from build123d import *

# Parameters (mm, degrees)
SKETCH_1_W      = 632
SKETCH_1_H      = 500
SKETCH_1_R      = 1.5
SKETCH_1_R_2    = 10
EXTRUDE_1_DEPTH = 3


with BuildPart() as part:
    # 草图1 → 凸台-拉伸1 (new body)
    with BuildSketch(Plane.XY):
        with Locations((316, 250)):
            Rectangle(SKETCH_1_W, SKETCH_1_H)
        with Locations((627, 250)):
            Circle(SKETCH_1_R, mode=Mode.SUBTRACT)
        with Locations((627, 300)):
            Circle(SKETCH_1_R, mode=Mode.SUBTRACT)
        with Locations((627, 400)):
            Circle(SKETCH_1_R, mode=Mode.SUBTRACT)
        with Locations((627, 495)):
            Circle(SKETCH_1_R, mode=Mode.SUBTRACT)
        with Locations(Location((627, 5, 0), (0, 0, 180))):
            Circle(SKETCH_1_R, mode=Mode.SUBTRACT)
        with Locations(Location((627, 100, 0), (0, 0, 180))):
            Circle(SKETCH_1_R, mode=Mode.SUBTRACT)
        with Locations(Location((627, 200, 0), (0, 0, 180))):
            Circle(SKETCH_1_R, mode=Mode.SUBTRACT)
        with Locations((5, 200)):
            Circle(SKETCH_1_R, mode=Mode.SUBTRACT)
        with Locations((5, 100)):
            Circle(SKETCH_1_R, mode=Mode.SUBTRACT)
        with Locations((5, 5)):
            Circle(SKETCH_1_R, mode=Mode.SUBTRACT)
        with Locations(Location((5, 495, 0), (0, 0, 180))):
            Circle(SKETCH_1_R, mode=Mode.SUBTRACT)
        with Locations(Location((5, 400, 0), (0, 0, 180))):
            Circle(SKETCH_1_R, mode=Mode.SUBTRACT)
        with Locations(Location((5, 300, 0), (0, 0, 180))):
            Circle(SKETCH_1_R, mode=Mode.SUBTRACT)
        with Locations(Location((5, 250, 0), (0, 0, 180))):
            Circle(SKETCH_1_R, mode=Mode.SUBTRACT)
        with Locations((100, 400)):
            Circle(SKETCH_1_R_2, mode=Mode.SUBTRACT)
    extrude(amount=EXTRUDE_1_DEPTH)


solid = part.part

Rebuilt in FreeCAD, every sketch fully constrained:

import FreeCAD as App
import Part
import Sketcher


def add_polygon(sketch, points):
    """Adds a closed chain of lines whose ends are joined by coincident constraints."""
    first, n = sketch.GeometryCount, len(points)
    for a, b in zip(points, points[1:] + points[:1]):
        sketch.addGeometry(Part.LineSegment(App.Vector(*a, 0), App.Vector(*b, 0)), False)
    for i in range(n):
        sketch.addConstraint(Sketcher.Constraint("Coincident", first + i, 2, first + (i + 1) % n, 1))

doc = App.newDocument("Part")
body = doc.addObject("PartDesign::Body", "Body")

sketch1 = body.newObject("Sketcher::SketchObject", "Sketch")
sketch1.AttachmentSupport = (doc.getObject("XY_Plane"), [""])
sketch1.MapMode = "FlatFace"
add_polygon(sketch1, [(0, 500), (0, 0), (632, 0), (632, 500)])
sketch1.addGeometry(Part.Circle(App.Vector(5, 5, 0), App.Vector(0, 0, 1), 1.5), False)
sketch1.addGeometry(Part.Circle(App.Vector(5, 100, 0), App.Vector(0, 0, 1), 1.5), False)
sketch1.addGeometry(Part.Circle(App.Vector(5, 200, 0), App.Vector(0, 0, 1), 1.5), False)
sketch1.addGeometry(Part.Circle(App.Vector(627, 5, 0), App.Vector(0, 0, 1), 1.5), False)
sketch1.addGeometry(Part.Circle(App.Vector(627, 100, 0), App.Vector(0, 0, 1), 1.5), False)
sketch1.addGeometry(Part.Circle(App.Vector(627, 200, 0), App.Vector(0, 0, 1), 1.5), False)
sketch1.addGeometry(Part.Circle(App.Vector(5, 250, 0), App.Vector(0, 0, 1), 1.5), False)
sketch1.addGeometry(Part.Circle(App.Vector(5, 300, 0), App.Vector(0, 0, 1), 1.5), False)
sketch1.addGeometry(Part.Circle(App.Vector(5, 400, 0), App.Vector(0, 0, 1), 1.5), False)
sketch1.addGeometry(Part.Circle(App.Vector(100, 400, 0), App.Vector(0, 0, 1), 10), False)
sketch1.addGeometry(Part.Circle(App.Vector(5, 495, 0), App.Vector(0, 0, 1), 1.5), False)
sketch1.addGeometry(Part.Circle(App.Vector(627, 250, 0), App.Vector(0, 0, 1), 1.5), False)
sketch1.addGeometry(Part.Circle(App.Vector(627, 300, 0), App.Vector(0, 0, 1), 1.5), False)
sketch1.addGeometry(Part.Circle(App.Vector(627, 400, 0), App.Vector(0, 0, 1), 1.5), False)
sketch1.addGeometry(Part.Circle(App.Vector(627, 495, 0), App.Vector(0, 0, 1), 1.5), False)
sketch1.addConstraint([
    Sketcher.Constraint("Vertical", 0),
    Sketcher.Constraint("Horizontal", 1),
    Sketcher.Constraint("Vertical", 2),
    Sketcher.Constraint("Horizontal", 3),
    Sketcher.Constraint("Coincident", 0, 2, -1, 1),
    Sketcher.Constraint("Equal", 4, 5),
    Sketcher.Constraint("Equal", 5, 6),
    Sketcher.Constraint("Equal", 6, 7),
    Sketcher.Constraint("Equal", 7, 8),
    Sketcher.Constraint("Equal", 8, 9),
    Sketcher.Constraint("Equal", 9, 10),
    Sketcher.Constraint("Equal", 10, 11),
    Sketcher.Constraint("Equal", 11, 12),
    Sketcher.Constraint("Equal", 12, 14),
    Sketcher.Constraint("Equal", 14, 15),
    Sketcher.Constraint("Equal", 15, 16),
    Sketcher.Constraint("Equal", 16, 17),
    Sketcher.Constraint("Equal", 17, 18),
    Sketcher.Constraint("Horizontal", 4, 3, 7, 3),
    Sketcher.Constraint("Horizontal", 5, 3, 8, 3),
    Sketcher.Constraint("Horizontal", 6, 3, 9, 3),
    Sketcher.Constraint("Horizontal", 12, 3, 13, 3),
    Sketcher.Constraint("Horizontal", 10, 3, 15, 3),
    Sketcher.Constraint("Horizontal", 11, 3, 16, 3),
    Sketcher.Constraint("Horizontal", 13, 3, 17, 3),
    Sketcher.Constraint("Horizontal", 14, 3, 18, 3),
    Sketcher.Constraint("Vertical", 4, 3, 5, 3),
    Sketcher.Constraint("Vertical", 5, 3, 6, 3),
    Sketcher.Constraint("Vertical", 7, 3, 8, 3),
    Sketcher.Constraint("Vertical", 8, 3, 9, 3),
    Sketcher.Constraint("Vertical", 6, 3, 10, 3),
    Sketcher.Constraint("Vertical", 10, 3, 11, 3),
    Sketcher.Constraint("Vertical", 11, 3, 12, 3),
    Sketcher.Constraint("Vertical", 12, 3, 14, 3),
    Sketcher.Constraint("Vertical", 9, 3, 15, 3),
    Sketcher.Constraint("Vertical", 15, 3, 16, 3),
    Sketcher.Constraint("Vertical", 16, 3, 17, 3),
    Sketcher.Constraint("Vertical", 17, 3, 18, 3),
    Sketcher.Constraint("Diameter", 4, 3.0),
    Sketcher.Constraint("Diameter", 13, 20.0),
    Sketcher.Constraint("DistanceX", 1, 1, 1, 2, 632.0),
    Sketcher.Constraint("DistanceY", 0, 2, 0, 1, 500.0),
    Sketcher.Constraint("DistanceX", -1, 1, 4, 3, 5.0),
    Sketcher.Constraint("DistanceY", -1, 1, 4, 3, 5.0),
    Sketcher.Constraint("DistanceY", -1, 1, 5, 3, 100.0),
    Sketcher.Constraint("DistanceY", -1, 1, 6, 3, 200.0),
    Sketcher.Constraint("DistanceX", -1, 1, 7, 3, 627.0),
    Sketcher.Constraint("DistanceY", -1, 1, 10, 3, 250.0),
    Sketcher.Constraint("DistanceY", -1, 1, 11, 3, 300.0),
    Sketcher.Constraint("DistanceY", -1, 1, 12, 3, 400.0),
    Sketcher.Constraint("DistanceX", -1, 1, 13, 3, 100.0),
    Sketcher.Constraint("DistanceY", -1, 1, 14, 3, 495.0),
])
pad1 = body.newObject("PartDesign::Pad", "Pad")
pad1.Profile = sketch1
pad1.Length = 3

doc.recompute()
